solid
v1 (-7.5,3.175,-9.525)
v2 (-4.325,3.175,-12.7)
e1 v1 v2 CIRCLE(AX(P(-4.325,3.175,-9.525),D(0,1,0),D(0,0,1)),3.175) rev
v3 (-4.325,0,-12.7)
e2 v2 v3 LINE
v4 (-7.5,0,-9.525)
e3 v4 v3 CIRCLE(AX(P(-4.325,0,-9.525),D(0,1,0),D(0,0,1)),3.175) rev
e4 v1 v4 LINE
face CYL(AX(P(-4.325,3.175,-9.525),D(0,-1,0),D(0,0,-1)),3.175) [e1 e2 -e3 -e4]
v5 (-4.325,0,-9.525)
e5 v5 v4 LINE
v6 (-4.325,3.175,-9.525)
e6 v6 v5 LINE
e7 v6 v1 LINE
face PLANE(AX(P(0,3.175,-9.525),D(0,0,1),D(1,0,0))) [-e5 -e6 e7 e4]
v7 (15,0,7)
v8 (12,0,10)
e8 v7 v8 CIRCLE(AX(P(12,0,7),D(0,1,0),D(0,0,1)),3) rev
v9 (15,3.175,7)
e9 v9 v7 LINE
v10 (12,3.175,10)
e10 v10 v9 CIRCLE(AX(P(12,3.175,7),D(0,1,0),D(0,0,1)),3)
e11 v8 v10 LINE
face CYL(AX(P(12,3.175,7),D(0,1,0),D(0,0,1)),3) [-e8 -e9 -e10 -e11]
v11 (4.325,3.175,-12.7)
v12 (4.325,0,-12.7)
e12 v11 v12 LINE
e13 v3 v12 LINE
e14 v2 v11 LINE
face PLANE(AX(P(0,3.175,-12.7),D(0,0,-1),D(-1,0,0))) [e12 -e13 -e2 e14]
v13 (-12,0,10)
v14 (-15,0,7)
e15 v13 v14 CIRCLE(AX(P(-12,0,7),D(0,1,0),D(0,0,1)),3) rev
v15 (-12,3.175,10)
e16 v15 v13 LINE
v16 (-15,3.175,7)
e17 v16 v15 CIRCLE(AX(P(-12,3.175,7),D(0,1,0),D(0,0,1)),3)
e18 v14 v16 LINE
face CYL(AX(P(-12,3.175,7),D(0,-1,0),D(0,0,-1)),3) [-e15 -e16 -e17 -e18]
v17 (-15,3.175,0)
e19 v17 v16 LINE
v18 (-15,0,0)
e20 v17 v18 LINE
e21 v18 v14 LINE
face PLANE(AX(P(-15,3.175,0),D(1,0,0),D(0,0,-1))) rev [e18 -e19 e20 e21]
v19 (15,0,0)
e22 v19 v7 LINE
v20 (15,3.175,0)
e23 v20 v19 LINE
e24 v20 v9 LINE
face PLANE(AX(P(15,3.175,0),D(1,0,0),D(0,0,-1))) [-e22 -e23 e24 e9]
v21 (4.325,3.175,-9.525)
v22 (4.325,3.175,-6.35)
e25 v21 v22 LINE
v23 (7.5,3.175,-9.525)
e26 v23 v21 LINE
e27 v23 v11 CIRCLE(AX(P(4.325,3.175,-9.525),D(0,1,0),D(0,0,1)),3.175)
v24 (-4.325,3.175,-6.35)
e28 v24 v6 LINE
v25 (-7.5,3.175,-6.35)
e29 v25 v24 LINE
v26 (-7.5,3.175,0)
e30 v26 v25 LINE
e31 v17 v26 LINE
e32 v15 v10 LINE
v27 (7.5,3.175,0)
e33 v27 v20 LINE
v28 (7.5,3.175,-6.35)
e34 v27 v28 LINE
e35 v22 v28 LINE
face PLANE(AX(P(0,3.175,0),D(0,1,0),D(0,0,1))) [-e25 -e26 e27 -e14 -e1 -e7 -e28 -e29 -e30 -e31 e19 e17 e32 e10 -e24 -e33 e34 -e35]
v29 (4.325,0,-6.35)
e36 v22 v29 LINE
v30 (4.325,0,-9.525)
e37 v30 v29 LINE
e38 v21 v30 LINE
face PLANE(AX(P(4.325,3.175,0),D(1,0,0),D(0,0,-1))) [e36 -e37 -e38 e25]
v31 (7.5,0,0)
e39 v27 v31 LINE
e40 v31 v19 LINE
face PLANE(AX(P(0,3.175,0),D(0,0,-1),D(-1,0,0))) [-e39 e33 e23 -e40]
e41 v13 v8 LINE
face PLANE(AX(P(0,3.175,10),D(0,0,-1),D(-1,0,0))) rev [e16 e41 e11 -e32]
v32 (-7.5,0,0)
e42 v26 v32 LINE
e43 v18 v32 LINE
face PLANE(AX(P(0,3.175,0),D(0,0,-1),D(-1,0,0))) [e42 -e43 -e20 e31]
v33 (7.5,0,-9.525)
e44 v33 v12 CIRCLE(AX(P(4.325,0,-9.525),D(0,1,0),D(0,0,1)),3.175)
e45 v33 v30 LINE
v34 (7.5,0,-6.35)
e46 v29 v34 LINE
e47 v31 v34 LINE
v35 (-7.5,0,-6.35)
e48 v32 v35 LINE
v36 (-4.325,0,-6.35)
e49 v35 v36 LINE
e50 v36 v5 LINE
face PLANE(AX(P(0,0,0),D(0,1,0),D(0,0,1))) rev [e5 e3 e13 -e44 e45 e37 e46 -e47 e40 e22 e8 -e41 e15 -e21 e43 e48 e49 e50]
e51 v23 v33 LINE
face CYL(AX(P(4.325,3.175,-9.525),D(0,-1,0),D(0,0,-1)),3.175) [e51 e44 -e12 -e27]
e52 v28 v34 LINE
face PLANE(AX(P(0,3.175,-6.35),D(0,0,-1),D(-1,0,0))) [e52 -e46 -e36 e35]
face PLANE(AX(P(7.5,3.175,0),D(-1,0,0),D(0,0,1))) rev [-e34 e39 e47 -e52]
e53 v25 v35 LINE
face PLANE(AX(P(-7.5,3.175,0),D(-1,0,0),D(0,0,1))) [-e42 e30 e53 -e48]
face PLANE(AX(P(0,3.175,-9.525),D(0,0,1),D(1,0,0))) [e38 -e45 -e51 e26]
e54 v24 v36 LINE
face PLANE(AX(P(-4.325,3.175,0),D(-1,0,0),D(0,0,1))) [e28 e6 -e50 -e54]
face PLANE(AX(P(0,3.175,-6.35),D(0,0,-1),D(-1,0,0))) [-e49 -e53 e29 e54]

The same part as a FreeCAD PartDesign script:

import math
import FreeCAD as App
import Part
import Sketcher


def edges_at(feature, points):
    """Names of the edges that pass closest to the given points."""
    edges = feature.Shape.Edges
    near = lambda p: min(range(len(edges)), key=lambda i: edges[i].distToShape(Part.Vertex(*p))[0])
    return sorted({f"Edge{near(p) + 1}" for p in points})

doc = App.newDocument("Part")
params = doc.addObject("Spreadsheet::Sheet", "Params")
for row, (alias, value) in enumerate([
    ("sketch1_width", "30 mm"),
    ("sketch1_height", "10 mm"),
    ("sketch1_width2", "7.5 mm"),
    ("sketch1_height2", "6.35 mm"),
    ("pad1_length", "3.175 mm"),
    ("fillet_radius", "3 mm"),
], start=1):
    params.set(f"A{row}", alias)
    params.set(f"B{row}", "=" + value)
    params.setAlias(f"B{row}", alias)

body = doc.addObject("PartDesign::Body", "Body")

sketch1 = body.newObject("Sketcher::SketchObject", "Sketch")
sketch1.AttachmentSupport = (doc.getObject("XZ_Plane"), [""])
sketch1.MapMode = "FlatFace"
sketch1.addGeometry(Part.LineSegment(App.Vector(-15, 0, 0), App.Vector(-15, 10, 0)), False)
sketch1.addGeometry(Part.LineSegment(App.Vector(-15, 10, 0), App.Vector(15, 10, 0)), False)
sketch1.addGeometry(Part.LineSegment(App.Vector(15, 10, 0), App.Vector(15, 0, 0)), False)
sketch1.addGeometry(Part.LineSegment(App.Vector(15, 0, 0), App.Vector(7.5, 0, 0)), False)
sketch1.addGeometry(Part.LineSegment(App.Vector(7.5, 0, 0), App.Vector(7.5, -6.35, 0)), False)
sketch1.addGeometry(Part.LineSegment(App.Vector(7.5, -6.35, 0), App.Vector(4.325, -6.35, 0)), False)
sketch1.addGeometry(Part.LineSegment(App.Vector(4.325, -6.35, 0), App.Vector(4.325, -9.525, 0)), False)
sketch1.addGeometry(Part.LineSegment(App.Vector(4.325, -9.525, 0), App.Vector(7.5, -9.525, 0)), False)
sketch1.addGeometry(Part.ArcOfCircle(Part.Circle(App.Vector(4.325, -9.525, 0), App.Vector(0, 0, 1), 3.175), math.radians(-90), math.radians(0)), False)
sketch1.addGeometry(Part.LineSegment(App.Vector(4.325, -12.7, 0), App.Vector(-4.325, -12.7, 0)), False)
sketch1.addGeometry(Part.ArcOfCircle(Part.Circle(App.Vector(-4.325, -9.525, 0), App.Vector(0, 0, 1), 3.175), math.radians(-180), math.radians(-90)), False)
sketch1.addGeometry(Part.LineSegment(App.Vector(-7.5, -9.525, 0), App.Vector(-4.325, -9.525, 0)), False)
sketch1.addGeometry(Part.LineSegment(App.Vector(-4.325, -9.525, 0), App.Vector(-4.325, -6.35, 0)), False)
sketch1.addGeometry(Part.LineSegment(App.Vector(-4.325, -6.35, 0), App.Vector(-7.5, -6.35, 0)), False)
sketch1.addGeometry(Part.LineSegment(App.Vector(-7.5, -6.35, 0), App.Vector(-7.5, 0, 0)), False)
sketch1.addGeometry(Part.LineSegment(App.Vector(-7.5, 0, 0), App.Vector(-15, 0, 0)), False)
sketch1.addConstraint(Sketcher.Constraint("Coincident", 0, 2, 1, 1))
sketch1.addConstraint(Sketcher.Constraint("Coincident", 1, 2, 2, 1))
sketch1.addConstraint(Sketcher.Constraint("Coincident", 2, 2, 3, 1))
sketch1.addConstraint(Sketcher.Constraint("Coincident", 3, 2, 4, 1))
sketch1.addConstraint(Sketcher.Constraint("Coincident", 4, 2, 5, 1))
sketch1.addConstraint(Sketcher.Constraint("Coincident", 5, 2, 6, 1))
sketch1.addConstraint(Sketcher.Constraint("Coincident", 6, 2, 7, 1))
sketch1.addConstraint(Sketcher.Constraint("Coincident", 7, 2, 8, 2))
sketch1.addConstraint(Sketcher.Constraint("Tangent", 8, 1, 9, 1))
sketch1.addConstraint(Sketcher.Constraint("Tangent", 9, 2, 10, 2))
sketch1.addConstraint(Sketcher.Constraint("Coincident", 10, 1, 11, 1))
sketch1.addConstraint(Sketcher.Constraint("Coincident", 11, 2, 12, 1))
sketch1.addConstraint(Sketcher.Constraint("Coincident", 12, 2, 13, 1))
sketch1.addConstraint(Sketcher.Constraint("Coincident", 13, 2, 14, 1))
sketch1.addConstraint(Sketcher.Constraint("Coincident", 14, 2, 15, 1))
sketch1.addConstraint(Sketcher.Constraint("Coincident", 15, 2, 0, 1))
sketch1.addConstraint(Sketcher.Constraint("Vertical", 0))
sketch1.addConstraint(Sketcher.Constraint("Horizontal", 1))
sketch1.addConstraint(Sketcher.Constraint("Vertical", 2))
sketch1.addConstraint(Sketcher.Constraint("Horizontal", 3))
sketch1.addConstraint(Sketcher.Constraint("Vertical", 4))
sketch1.addConstraint(Sketcher.Constraint("Horizontal", 5))
sketch1.addConstraint(Sketcher.Constraint("Vertical", 6))
sketch1.addConstraint(Sketcher.Constraint("Horizontal", 7))
sketch1.addConstraint(Sketcher.Constraint("Horizontal", 9))
sketch1.addConstraint(Sketcher.Constraint("Horizontal", 11))
sketch1.addConstraint(Sketcher.Constraint("Vertical", 12))
sketch1.addConstraint(Sketcher.Constraint("Horizontal", 13))
sketch1.addConstraint(Sketcher.Constraint("Vertical", 14))
sketch1.addConstraint(Sketcher.Constraint("Horizontal", 15))
sketch1.addConstraint(Sketcher.Constraint("Coincident", 6, 2, 8, 3))
sketch1.addConstraint(Sketcher.Constraint("Coincident", 11, 2, 10, 3))
sketch1.addConstraint(Sketcher.Constraint("Equal", 8, 10))
sketch1.addConstraint(Sketcher.Constraint("Symmetric", 3, 2, 14, 2, -1, 1))
sketch1.addConstraint(Sketcher.Constraint("Symmetric", 5, 2, 12, 2, -2))
sketch1.addConstraint(Sketcher.Constraint("Symmetric", 2, 2, 15, 2, -2))
sketch1.addConstraint(Sketcher.Constraint("Vertical", 4, 2, 7, 2))
sketch1.addConstraint(Sketcher.Constraint("Equal", 13, 6))
sketch1.addConstraint(Sketcher.Constraint("DistanceX", 1, 1, 1, 2, 30.0))
sketch1.addConstraint(Sketcher.Constraint("DistanceY", 0, 1, 0, 2, 10.0))
sketch1.addConstraint(Sketcher.Constraint("DistanceX", 3, 2, 3, 1, 7.5))
sketch1.addConstraint(Sketcher.Constraint("Radius", 8, 3.175))
sketch1.addConstraint(Sketcher.Constraint("DistanceY", 4, 2, 4, 1, 6.35))
sketch1.setExpression("Constraints[38]", "Params.sketch1_width")
sketch1.setExpression("Constraints[39]", "Params.sketch1_height")
sketch1.setExpression("Constraints[40]", "Params.sketch1_width2")
sketch1.setExpression("Constraints[42]", "Params.sketch1_height2")
pad1 = body.newObject("PartDesign::Pad", "Pad")
pad1.Profile = sketch1
pad1.setExpression("Length", "Params.pad1_length")
pad1.Reversed = True
doc.recompute()

fillet = body.newObject("PartDesign::Fillet", "Fillet")
fillet.Base = (pad1, edges_at(pad1, [(15, 1.587, 10), (-15, 1.587, 10)]))
fillet.setExpression("Radius", "Params.fillet_radius")

doc.recompute()
